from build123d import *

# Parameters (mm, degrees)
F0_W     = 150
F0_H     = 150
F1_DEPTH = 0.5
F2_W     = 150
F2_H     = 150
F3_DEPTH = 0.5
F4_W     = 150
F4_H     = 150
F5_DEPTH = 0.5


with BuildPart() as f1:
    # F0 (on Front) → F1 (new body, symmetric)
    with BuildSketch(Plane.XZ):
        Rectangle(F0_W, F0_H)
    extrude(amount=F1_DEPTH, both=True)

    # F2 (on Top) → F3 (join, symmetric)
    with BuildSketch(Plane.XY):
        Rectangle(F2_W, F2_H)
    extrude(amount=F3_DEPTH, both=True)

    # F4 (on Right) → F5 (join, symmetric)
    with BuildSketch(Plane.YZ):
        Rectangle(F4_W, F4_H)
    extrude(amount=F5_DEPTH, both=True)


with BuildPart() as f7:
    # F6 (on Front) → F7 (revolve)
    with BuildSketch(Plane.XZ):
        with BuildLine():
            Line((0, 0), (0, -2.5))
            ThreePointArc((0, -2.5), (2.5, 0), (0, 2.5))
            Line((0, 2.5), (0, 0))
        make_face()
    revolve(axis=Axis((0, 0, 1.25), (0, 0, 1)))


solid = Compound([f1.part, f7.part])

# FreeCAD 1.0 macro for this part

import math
import FreeCAD as App
import Part
import Sketcher
from FreeCAD import Vector


def add_polygon(sketch, points):
    """Adds a closed chain of lines whose ends are joined by coincident constraints."""
    first, n = sketch.GeometryCount, len(points)
    for a, b in zip(points, points[1:] + points[:1]):
        sketch.addGeometry(Part.LineSegment(App.Vector(*a, 0), App.Vector(*b, 0)), False)
    for i in range(n):
        sketch.addConstraint(Sketcher.Constraint("Coincident", first + i, 2, first + (i + 1) % n, 1))

doc = App.newDocument("Part")
body = doc.addObject("PartDesign::Body", "Body")

sketch1 = doc.addObject("Sketcher::SketchObject", "Sketch")
body.addObject(sketch1)
sketch1.AttachmentSupport = (doc.XZ_Plane, [""])
sketch1.MapMode = "FlatFace"
add_polygon(sketch1, [(-75, 75), (-75, -75), (75, -75), (75, 75)])
sketch1.addConstraint(Sketcher.Constraint("Vertical", 0))
sketch1.addConstraint(Sketcher.Constraint("Horizontal", 1))
sketch1.addConstraint(Sketcher.Constraint("Vertical", 2))
sketch1.addConstraint(Sketcher.Constraint("Horizontal", 3))
sketch1.addConstraint(Sketcher.Constraint("Symmetric", 0, 2, 2, 2, -1, 1))
sketch1.addConstraint(Sketcher.Constraint("Equal", 3, 0))
sketch1.addConstraint(Sketcher.Constraint("DistanceX", 1, 1, 1, 2, 150.0))
pad1 = doc.addObject("PartDesign::Pad", "Pad")
body.addObject(pad1)
pad1.Profile = sketch1
pad1.Length = 1
pad1.Midplane = True

sketch2 = doc.addObject("Sketcher::SketchObject", "Sketch001")
body.addObject(sketch2)
sketch2.AttachmentSupport = (doc.XY_Plane, [""])
sketch2.MapMode = "FlatFace"
add_polygon(sketch2, [(-75, 75), (-75, -75), (75, -75), (75, 75)])
sketch2.addConstraint(Sketcher.Constraint("Vertical", 0))
sketch2.addConstraint(Sketcher.Constraint("Horizontal", 1))
sketch2.addConstraint(Sketcher.Constraint("Vertical", 2))
sketch2.addConstraint(Sketcher.Constraint("Horizontal", 3))
sketch2.addConstraint(Sketcher.Constraint("Symmetric", 0, 2, 2, 2, -1, 1))
sketch2.addConstraint(Sketcher.Constraint("Equal", 3, 0))
sketch2.addConstraint(Sketcher.Constraint("DistanceX", 1, 1, 1, 2, 150.0))
pad2 = doc.addObject("PartDesign::Pad", "Pad001")
body.addObject(pad2)
pad2.Profile = sketch2
pad2.Length = 1
pad2.Midplane = True

sketch3 = doc.addObject("Sketcher::SketchObject", "Sketch002")
body.addObject(sketch3)
sketch3.AttachmentSupport = (doc.YZ_Plane, [""])
sketch3.MapMode = "FlatFace"
add_polygon(sketch3, [(-75, 75), (-75, -75), (75, -75), (75, 75)])
sketch3.addConstraint(Sketcher.Constraint("Vertical", 0))
sketch3.addConstraint(Sketcher.Constraint("Horizontal", 1))
sketch3.addConstraint(Sketcher.Constraint("Vertical", 2))
sketch3.addConstraint(Sketcher.Constraint("Horizontal", 3))
sketch3.addConstraint(Sketcher.Constraint("Symmetric", 0, 2, 2, 2, -1, 1))
sketch3.addConstraint(Sketcher.Constraint("Equal", 3, 0))
sketch3.addConstraint(Sketcher.Constraint("DistanceX", 1, 1, 1, 2, 150.0))
pad3 = doc.addObject("PartDesign::Pad", "Pad002")
body.addObject(pad3)
pad3.Profile = sketch3
pad3.Length = 1
pad3.Midplane = True
body2 = doc.addObject("PartDesign::Body", "Body001")

sketch4 = doc.addObject("Sketcher::SketchObject", "Sketch003")
body2.addObject(sketch4)
sketch4.AttachmentSupport = (doc.getObject("XZ_Plane001"), [""])
sketch4.MapMode = "FlatFace"
sketch4.addGeometry(Part.ArcOfCircle(Part.Circle(Vector(0, 0, 0), Vector(0, 0, 1), 2.5), math.radians(-90), math.radians(90)), False)
sketch4.addGeometry(Part.LineSegment(Vector(0, 2.5, 0), Vector(0, -2.5, 0)), False)
sketch4.addConstraint(Sketcher.Constraint("Coincident", 0, 1, 1, 2))
sketch4.addConstraint(Sketcher.Constraint("Coincident", 1, 1, 0, 2))
sketch4.addConstraint(Sketcher.Constraint("Vertical", 1))
sketch4.addConstraint(Sketcher.Constraint("Coincident", 0, 3, -1, 1))
sketch4.addConstraint(Sketcher.Constraint("PointOnObject", 0, 1, -2))
sketch4.addConstraint(Sketcher.Constraint("Radius", 0, 2.5))
revolution = doc.addObject("PartDesign::Revolution", "Revolution")
body2.addObject(revolution)
revolution.Profile = sketch4
revolution.ReferenceAxis = (sketch4, ["V_Axis"])
revolution.Angle = 360

doc.recompute()
